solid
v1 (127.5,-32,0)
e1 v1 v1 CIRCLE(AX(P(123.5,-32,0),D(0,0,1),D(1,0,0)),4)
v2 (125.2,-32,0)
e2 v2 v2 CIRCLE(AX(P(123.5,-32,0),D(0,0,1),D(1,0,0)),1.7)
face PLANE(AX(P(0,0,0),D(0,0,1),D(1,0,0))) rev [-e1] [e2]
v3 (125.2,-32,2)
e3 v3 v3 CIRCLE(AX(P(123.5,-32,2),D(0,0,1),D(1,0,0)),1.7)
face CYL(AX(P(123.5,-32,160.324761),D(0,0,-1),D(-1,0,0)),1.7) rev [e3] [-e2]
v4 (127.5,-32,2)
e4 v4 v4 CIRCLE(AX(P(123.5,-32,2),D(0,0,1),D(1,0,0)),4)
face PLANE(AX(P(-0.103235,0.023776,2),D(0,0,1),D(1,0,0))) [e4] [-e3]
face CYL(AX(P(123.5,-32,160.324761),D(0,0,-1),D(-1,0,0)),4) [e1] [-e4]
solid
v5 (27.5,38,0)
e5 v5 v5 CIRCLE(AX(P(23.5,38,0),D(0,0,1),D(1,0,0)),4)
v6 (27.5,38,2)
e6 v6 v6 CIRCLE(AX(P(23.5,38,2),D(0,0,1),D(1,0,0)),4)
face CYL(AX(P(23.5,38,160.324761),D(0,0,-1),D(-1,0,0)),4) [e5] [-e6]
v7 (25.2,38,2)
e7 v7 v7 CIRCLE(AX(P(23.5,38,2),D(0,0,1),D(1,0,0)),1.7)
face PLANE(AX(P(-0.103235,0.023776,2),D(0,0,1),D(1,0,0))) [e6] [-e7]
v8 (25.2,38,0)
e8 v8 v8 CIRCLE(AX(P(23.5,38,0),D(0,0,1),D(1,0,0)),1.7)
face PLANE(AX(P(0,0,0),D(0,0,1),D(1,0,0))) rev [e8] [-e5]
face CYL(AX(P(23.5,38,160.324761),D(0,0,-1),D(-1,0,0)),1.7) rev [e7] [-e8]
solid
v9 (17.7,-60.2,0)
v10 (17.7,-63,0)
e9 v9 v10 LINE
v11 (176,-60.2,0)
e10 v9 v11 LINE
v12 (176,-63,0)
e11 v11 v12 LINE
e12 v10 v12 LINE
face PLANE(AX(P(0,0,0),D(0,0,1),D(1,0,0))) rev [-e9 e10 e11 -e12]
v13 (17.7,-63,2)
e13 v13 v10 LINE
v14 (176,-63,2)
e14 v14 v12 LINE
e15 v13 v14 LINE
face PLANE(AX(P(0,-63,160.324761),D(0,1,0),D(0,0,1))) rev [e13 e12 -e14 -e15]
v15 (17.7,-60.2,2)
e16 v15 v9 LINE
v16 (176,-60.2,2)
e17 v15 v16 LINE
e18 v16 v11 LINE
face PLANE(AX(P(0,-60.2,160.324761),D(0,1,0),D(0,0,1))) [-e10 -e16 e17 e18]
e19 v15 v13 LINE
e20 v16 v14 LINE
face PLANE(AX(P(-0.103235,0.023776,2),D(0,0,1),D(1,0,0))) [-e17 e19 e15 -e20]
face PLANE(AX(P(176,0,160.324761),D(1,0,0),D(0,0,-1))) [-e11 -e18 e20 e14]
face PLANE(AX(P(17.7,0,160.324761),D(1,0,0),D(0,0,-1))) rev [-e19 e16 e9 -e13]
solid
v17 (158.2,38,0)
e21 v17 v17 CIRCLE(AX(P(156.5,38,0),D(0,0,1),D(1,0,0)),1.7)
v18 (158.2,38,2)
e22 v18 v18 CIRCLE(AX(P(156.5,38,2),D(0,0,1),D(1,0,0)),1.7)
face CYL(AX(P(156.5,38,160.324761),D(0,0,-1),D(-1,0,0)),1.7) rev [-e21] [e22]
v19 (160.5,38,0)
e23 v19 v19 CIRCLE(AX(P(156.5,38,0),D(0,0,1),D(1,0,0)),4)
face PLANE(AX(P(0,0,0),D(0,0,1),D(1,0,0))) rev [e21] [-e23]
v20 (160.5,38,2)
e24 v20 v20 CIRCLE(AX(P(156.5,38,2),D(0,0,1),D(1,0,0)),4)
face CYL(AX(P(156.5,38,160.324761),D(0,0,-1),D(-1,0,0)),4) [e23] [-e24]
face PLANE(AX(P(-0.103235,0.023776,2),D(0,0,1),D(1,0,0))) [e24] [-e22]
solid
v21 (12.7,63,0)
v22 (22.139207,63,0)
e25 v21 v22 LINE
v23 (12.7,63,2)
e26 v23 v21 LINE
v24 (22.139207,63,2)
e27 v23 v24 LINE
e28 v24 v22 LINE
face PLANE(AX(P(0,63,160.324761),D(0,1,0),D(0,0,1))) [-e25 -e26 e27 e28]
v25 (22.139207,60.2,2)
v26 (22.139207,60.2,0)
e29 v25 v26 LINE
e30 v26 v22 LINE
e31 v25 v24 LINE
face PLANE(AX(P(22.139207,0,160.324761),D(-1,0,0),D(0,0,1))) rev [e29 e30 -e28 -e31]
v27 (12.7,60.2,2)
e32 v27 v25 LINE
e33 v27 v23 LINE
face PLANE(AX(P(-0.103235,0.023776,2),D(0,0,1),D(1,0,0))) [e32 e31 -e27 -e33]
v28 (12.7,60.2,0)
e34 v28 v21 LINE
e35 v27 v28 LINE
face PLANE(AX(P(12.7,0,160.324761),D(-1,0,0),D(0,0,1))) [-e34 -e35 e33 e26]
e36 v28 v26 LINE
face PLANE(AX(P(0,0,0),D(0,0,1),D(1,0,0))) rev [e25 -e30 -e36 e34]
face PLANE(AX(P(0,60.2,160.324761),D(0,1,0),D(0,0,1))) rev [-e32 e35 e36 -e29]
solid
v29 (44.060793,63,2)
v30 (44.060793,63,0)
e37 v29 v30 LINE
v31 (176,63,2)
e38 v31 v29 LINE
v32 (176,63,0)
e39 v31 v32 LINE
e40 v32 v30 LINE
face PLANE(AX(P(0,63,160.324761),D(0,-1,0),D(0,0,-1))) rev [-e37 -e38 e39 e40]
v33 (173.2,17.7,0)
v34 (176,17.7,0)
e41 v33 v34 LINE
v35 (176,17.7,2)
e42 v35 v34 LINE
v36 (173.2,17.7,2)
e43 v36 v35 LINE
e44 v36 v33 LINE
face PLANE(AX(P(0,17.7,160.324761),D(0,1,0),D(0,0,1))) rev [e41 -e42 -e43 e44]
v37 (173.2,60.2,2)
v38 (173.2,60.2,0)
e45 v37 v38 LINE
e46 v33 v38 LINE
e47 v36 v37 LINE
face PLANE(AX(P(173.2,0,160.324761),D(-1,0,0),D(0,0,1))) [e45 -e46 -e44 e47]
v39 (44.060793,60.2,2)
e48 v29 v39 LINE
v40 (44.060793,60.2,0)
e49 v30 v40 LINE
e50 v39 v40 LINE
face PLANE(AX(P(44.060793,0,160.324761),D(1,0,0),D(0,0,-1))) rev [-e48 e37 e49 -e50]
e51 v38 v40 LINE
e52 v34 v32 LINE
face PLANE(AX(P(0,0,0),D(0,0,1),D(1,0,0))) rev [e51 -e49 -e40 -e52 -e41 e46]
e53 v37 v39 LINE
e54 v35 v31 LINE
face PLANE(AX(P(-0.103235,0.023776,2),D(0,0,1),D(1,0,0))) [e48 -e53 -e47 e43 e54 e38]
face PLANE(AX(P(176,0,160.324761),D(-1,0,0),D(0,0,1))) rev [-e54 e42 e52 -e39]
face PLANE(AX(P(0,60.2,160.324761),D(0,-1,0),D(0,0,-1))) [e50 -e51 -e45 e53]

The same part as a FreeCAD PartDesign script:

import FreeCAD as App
import Part
import Sketcher

V = App.Vector

doc = App.newDocument("Part")
params = doc.addObject("Spreadsheet::Sheet", "Params")
for row, (alias, value) in enumerate([
    ("sketch1_diameter", "8 mm"),
    ("sketch1_diameter2", "3.4 mm"),
    ("sketch1_width", "2.8 mm"),
    ("sketch1_width2", "158.3 mm"),
    ("sketch1_height", "42.5 mm"),
    ("pad1_length", "2 mm"),
], start=1):
    params.set(f"A{row}", alias)
    params.set(f"B{row}", "=" + value)
    params.setAlias(f"B{row}", alias)

body = doc.addObject("PartDesign::Body", "Body")
body.AllowCompound = True

# Sketch on XY plane
sketch1 = doc.addObject("Sketcher::SketchObject", "Sketch")
body.addObject(sketch1)
sketch1.AttachmentSupport = (doc.XY_Plane, [""])
sketch1.MapMode = "FlatFace"
sketch1.addGeometry([
    Part.LineSegment(V(44.1, 63, 0), V(44.1, 60.2, 0)),  # 0
    Part.LineSegment(V(44.1, 60.2, 0), V(173.2, 60.2, 0)),  # 1
    Part.LineSegment(V(173.2, 60.2, 0), V(173.2, 17.7, 0)),  # 2
    Part.LineSegment(V(173.2, 17.7, 0), V(176, 17.7, 0)),  # 3
    Part.LineSegment(V(176, 17.7, 0), V(176, 63, 0)),  # 4
    Part.LineSegment(V(176, 63, 0), V(44.1, 63, 0)),  # 5
    Part.LineSegment(V(12.7, 63, 0), V(12.7, 60.2, 0)),  # 6
    Part.LineSegment(V(12.7, 60.2, 0), V(22.1, 60.2, 0)),  # 7
    Part.LineSegment(V(22.1, 60.2, 0), V(22.1, 63, 0)),  # 8
    Part.LineSegment(V(22.1, 63, 0), V(12.7, 63, 0)),  # 9
    Part.Circle(V(23.5, 38, 0), V(0, 0, 1), 4),  # 10
    Part.Circle(V(23.5, 38, 0), V(0, 0, 1), 1.7),  # 11
    Part.Circle(V(156.5, 38, 0), V(0, 0, 1), 4),  # 12
    Part.Circle(V(156.5, 38, 0), V(0, 0, 1), 1.7),  # 13
    Part.Circle(V(123.5, -32, 0), V(0, 0, 1), 4),  # 14
    Part.Circle(V(123.5, -32, 0), V(0, 0, 1), 1.7),  # 15
    Part.LineSegment(V(17.7, -60.2, 0), V(17.7, -63, 0)),  # 16
    Part.LineSegment(V(17.7, -63, 0), V(176, -63, 0)),  # 17
    Part.LineSegment(V(176, -63, 0), V(176, -60.2, 0)),  # 18
    Part.LineSegment(V(176, -60.2, 0), V(17.7, -60.2, 0)),  # 19
], False)
sketch1.addConstraint([
    Sketcher.Constraint("Coincident", 0, 2, 1, 1),
    Sketcher.Constraint("Coincident", 1, 2, 2, 1),
    Sketcher.Constraint("Coincident", 2, 2, 3, 1),
    Sketcher.Constraint("Coincident", 3, 2, 4, 1),
    Sketcher.Constraint("Coincident", 4, 2, 5, 1),
    Sketcher.Constraint("Coincident", 5, 2, 0, 1),
    Sketcher.Constraint("Coincident", 6, 2, 7, 1),
    Sketcher.Constraint("Coincident", 7, 2, 8, 1),
    Sketcher.Constraint("Coincident", 8, 2, 9, 1),
    Sketcher.Constraint("Coincident", 9, 2, 6, 1),
    Sketcher.Constraint("Coincident", 16, 2, 17, 1),
    Sketcher.Constraint("Coincident", 17, 2, 18, 1),
    Sketcher.Constraint("Coincident", 18, 2, 19, 1),
    Sketcher.Constraint("Coincident", 19, 2, 16, 1),
    Sketcher.Constraint("Vertical", 0),
    Sketcher.Constraint("Horizontal", 1),
    Sketcher.Constraint("Vertical", 2),
    Sketcher.Constraint("Horizontal", 3),
    Sketcher.Constraint("Vertical", 4),
    Sketcher.Constraint("Horizontal", 5),
    Sketcher.Constraint("Vertical", 6),
    Sketcher.Constraint("Horizontal", 7),
    Sketcher.Constraint("Vertical", 8),
    Sketcher.Constraint("Horizontal", 9),
    Sketcher.Constraint("Vertical", 16),
    Sketcher.Constraint("Horizontal", 17),
    Sketcher.Constraint("Vertical", 18),
    Sketcher.Constraint("Horizontal", 19),
    Sketcher.Constraint("Coincident", 11, 3, 10, 3),
    Sketcher.Constraint("Coincident", 13, 3, 12, 3),
    Sketcher.Constraint("Coincident", 15, 3, 14, 3),
    Sketcher.Constraint("Equal", 10, 12),
    Sketcher.Constraint("Equal", 11, 13),
    Sketcher.Constraint("Equal", 12, 14),
    Sketcher.Constraint("Equal", 13, 15),
    Sketcher.Constraint("Symmetric", 4, 2, 17, 2, -1),
    Sketcher.Constraint("Horizontal", 11, 3, 12, 3),
    Sketcher.Constraint("Horizontal", 1, 2, 6, 2),
    Sketcher.Constraint("Horizontal", 5, 2, 8, 2),
    Sketcher.Constraint("Equal", 3, 0),
    Sketcher.Constraint("Equal", 8, 16),
    Sketcher.Constraint("Diameter", 10, 8.0),
    Sketcher.Constraint("Diameter", 11, 3.4),
    Sketcher.Constraint("DistanceX", 3, 1, 3, 2, 2.8),
    Sketcher.Constraint("DistanceX", 17, 1, 17, 2, 158.3),
    Sketcher.Constraint("DistanceY", 2, 2, 2, 1, 42.5),
    Sketcher.Constraint("DistanceY", -1, 1, 10, 3, 38.0),
    Sketcher.Constraint("DistanceY", 14, 3, -1, 1, 32.0),
    Sketcher.Constraint("DistanceX", -1, 1, 3, 2, 176.0),
    Sketcher.Constraint("DistanceY", -1, 1, 4, 2, 63.0),
    Sketcher.Constraint("DistanceX", 10, 3, 12, 3, 133.0),
    Sketcher.Constraint("DistanceX", 14, 3, 12, 3, 33.0),
    Sketcher.Constraint("DistanceX", -1, 1, 10, 3, 23.5),
    Sketcher.Constraint("DistanceX", -1, 1, 6, 2, 12.7),
    Sketcher.Constraint("DistanceX", 1, 1, 1, 2, 129.139207),
    Sketcher.Constraint("DistanceX", 7, 1, 7, 2, 9.439207),
])
sketch1.setExpression("Constraints[41]", "Params.sketch1_diameter")
sketch1.setExpression("Constraints[42]", "Params.sketch1_diameter2")
sketch1.setExpression("Constraints[43]", "Params.sketch1_width")
sketch1.setExpression("Constraints[44]", "Params.sketch1_width2")
sketch1.setExpression("Constraints[45]", "Params.sketch1_height")
pad1 = doc.addObject("PartDesign::Pad", "Pad")
body.addObject(pad1)
pad1.Profile = sketch1
pad1.setExpression("Length", "Params.pad1_length")

doc.recompute()
